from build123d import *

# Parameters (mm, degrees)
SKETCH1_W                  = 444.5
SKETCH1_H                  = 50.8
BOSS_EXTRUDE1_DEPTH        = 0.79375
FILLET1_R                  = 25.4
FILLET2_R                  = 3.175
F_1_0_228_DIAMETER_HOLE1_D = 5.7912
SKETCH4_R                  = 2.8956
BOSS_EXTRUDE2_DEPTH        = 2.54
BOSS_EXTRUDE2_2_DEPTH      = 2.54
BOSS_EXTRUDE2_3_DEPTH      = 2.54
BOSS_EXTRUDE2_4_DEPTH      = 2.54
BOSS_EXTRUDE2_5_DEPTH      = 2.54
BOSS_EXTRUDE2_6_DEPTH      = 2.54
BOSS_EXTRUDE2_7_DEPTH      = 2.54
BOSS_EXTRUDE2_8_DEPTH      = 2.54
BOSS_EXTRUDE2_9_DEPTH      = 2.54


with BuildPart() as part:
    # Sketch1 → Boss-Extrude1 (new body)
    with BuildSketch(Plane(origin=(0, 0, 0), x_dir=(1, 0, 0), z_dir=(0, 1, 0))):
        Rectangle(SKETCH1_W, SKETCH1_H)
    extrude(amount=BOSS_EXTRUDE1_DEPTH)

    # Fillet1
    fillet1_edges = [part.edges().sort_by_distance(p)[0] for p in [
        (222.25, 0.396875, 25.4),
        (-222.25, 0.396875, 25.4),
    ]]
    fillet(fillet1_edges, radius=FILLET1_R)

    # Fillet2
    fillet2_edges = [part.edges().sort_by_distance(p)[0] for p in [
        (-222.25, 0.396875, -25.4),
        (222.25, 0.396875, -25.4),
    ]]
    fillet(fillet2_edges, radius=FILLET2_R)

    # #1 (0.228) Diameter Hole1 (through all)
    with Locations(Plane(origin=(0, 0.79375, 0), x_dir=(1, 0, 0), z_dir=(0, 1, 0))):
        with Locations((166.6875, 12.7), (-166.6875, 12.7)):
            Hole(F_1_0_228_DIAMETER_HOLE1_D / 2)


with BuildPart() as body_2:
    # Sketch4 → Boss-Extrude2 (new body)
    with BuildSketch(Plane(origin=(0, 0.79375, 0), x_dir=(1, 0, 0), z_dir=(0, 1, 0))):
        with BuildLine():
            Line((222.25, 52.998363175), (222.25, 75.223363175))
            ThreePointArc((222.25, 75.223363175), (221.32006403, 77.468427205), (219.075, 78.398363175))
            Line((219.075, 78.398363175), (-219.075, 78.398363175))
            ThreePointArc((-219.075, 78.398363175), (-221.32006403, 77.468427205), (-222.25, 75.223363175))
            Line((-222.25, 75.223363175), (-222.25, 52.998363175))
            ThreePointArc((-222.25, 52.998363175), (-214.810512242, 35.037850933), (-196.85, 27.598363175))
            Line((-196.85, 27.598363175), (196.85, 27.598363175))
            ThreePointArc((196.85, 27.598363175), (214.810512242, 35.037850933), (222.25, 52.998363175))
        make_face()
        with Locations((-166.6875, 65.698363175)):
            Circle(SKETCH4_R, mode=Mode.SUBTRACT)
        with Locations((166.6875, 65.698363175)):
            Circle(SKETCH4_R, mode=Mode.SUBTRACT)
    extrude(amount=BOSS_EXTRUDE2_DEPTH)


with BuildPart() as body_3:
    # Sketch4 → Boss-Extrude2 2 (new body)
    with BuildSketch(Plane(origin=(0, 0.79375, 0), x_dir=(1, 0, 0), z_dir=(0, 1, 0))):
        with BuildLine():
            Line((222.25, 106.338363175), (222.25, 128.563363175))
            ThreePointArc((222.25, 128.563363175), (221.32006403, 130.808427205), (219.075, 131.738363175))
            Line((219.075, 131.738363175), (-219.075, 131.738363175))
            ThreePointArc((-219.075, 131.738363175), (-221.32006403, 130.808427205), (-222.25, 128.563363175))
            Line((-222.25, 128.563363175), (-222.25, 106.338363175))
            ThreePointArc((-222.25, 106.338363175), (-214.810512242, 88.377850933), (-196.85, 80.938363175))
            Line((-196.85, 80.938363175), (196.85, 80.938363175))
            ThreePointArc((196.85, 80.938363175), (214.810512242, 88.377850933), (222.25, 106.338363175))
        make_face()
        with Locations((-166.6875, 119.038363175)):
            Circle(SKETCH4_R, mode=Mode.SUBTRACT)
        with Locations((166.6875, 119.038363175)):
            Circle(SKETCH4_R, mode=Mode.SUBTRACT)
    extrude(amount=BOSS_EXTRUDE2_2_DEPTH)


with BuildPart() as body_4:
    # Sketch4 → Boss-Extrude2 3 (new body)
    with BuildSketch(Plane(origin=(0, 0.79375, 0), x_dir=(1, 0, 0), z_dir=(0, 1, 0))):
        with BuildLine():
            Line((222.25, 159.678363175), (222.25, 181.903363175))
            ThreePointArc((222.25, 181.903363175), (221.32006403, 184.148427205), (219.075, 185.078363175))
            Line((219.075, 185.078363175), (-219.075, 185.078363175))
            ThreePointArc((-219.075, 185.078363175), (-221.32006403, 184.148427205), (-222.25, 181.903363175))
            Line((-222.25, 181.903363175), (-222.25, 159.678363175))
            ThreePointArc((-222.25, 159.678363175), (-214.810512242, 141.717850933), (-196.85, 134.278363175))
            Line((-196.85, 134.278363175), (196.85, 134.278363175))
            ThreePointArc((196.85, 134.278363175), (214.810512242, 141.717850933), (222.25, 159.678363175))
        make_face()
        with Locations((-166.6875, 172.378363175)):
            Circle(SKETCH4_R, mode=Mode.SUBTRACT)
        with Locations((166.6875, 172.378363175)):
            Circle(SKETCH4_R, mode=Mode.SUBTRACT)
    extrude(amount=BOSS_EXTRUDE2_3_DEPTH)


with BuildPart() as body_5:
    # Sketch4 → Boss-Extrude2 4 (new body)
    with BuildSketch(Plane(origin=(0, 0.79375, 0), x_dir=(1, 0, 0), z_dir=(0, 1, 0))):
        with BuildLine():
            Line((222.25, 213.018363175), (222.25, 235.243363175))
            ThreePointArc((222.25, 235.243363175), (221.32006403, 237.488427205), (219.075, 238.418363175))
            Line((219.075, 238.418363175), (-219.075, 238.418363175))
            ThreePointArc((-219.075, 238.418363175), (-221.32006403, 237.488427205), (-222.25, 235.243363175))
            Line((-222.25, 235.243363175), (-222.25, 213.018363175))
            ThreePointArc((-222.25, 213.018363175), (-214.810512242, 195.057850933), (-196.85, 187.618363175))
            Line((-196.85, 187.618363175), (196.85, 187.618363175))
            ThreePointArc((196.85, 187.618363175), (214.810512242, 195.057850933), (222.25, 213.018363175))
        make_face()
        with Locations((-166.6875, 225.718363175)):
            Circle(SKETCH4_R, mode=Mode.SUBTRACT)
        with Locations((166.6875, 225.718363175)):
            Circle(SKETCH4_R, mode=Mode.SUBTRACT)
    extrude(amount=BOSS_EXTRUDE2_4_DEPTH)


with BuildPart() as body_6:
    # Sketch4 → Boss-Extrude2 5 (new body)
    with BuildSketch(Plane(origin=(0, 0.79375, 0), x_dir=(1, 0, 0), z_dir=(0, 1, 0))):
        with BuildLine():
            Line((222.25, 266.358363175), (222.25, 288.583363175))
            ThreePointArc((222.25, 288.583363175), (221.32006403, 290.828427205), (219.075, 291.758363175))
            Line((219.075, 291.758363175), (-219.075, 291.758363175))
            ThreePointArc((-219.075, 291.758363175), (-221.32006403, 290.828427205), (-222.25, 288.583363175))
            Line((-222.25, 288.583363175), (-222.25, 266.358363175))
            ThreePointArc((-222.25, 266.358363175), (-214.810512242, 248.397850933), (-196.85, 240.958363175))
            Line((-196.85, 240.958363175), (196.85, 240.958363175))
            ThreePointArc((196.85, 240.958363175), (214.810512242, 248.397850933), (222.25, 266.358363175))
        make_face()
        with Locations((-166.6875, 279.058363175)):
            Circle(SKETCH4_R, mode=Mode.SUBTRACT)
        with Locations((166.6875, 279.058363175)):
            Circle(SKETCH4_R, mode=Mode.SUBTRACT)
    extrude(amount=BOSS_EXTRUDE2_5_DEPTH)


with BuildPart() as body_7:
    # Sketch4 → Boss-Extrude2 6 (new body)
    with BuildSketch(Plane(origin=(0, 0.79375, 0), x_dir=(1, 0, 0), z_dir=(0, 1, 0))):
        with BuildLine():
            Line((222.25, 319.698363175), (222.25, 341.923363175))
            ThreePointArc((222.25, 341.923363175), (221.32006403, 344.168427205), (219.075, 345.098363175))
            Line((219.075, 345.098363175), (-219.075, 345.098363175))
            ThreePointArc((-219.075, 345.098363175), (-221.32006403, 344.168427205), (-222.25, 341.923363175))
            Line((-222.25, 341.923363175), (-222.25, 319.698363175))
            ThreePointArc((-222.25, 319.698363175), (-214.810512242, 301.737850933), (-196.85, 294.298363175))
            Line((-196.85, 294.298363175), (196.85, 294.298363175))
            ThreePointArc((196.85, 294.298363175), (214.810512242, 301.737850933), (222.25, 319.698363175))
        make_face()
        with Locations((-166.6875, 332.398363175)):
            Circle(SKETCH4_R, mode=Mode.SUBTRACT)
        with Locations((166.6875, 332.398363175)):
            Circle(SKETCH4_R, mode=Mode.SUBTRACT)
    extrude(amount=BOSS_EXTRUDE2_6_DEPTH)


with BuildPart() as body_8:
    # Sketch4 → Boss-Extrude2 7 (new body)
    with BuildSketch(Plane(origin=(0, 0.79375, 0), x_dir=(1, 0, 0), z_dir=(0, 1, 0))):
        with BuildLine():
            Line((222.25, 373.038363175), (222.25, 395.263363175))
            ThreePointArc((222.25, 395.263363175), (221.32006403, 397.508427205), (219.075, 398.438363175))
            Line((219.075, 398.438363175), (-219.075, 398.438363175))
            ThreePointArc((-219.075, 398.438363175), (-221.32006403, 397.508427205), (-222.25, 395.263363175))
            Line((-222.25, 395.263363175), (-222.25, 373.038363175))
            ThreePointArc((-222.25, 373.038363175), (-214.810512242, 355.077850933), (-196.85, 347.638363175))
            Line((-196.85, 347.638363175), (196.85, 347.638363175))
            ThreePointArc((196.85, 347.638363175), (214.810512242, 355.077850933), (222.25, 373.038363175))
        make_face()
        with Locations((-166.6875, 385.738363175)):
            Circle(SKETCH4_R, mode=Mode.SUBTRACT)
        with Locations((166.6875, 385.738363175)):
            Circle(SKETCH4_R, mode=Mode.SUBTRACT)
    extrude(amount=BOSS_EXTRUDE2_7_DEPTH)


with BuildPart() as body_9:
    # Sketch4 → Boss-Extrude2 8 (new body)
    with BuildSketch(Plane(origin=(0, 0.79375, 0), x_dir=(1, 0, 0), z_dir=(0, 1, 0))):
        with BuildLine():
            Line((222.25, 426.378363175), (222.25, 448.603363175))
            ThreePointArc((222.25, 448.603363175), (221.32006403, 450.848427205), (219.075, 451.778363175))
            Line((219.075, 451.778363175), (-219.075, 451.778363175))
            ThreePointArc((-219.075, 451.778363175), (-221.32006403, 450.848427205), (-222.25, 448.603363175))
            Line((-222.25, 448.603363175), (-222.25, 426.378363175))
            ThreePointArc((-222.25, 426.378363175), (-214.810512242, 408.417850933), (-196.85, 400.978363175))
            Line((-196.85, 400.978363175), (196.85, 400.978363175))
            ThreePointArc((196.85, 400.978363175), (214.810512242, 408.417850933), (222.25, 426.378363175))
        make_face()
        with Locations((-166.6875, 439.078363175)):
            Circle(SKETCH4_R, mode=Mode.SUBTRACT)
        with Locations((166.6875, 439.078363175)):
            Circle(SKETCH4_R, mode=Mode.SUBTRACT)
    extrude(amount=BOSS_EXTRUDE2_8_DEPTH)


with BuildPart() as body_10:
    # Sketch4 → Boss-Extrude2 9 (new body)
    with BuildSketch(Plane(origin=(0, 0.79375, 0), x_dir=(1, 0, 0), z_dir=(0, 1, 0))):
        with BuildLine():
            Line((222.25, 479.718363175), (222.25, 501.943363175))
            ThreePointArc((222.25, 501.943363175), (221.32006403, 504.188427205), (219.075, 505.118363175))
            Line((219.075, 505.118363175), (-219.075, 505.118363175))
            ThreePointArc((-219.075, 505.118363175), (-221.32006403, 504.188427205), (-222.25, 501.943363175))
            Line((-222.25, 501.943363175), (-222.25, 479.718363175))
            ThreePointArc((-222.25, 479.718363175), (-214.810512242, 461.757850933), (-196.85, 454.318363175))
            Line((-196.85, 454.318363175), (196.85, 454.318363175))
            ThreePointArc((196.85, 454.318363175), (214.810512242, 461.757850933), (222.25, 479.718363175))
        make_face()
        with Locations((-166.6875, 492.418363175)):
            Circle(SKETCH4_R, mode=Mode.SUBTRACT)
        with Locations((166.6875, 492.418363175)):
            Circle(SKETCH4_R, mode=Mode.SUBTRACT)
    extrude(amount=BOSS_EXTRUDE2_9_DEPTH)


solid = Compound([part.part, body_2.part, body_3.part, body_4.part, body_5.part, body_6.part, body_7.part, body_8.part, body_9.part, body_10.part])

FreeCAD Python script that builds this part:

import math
import FreeCAD as App
import Part
import Sketcher

V = App.Vector
Q = App.Units.Quantity


def edges_at(feature, points):
    """Names of the edges that pass closest to the given points."""
    edges = feature.Shape.Edges
    near = lambda p: min(range(len(edges)), key=lambda i: edges[i].distToShape(Part.Vertex(*p))[0])
    return sorted({f"Edge{near(p) + 1}" for p in points})


def add_polygon(sketch, points):
    """Adds a closed chain of lines whose ends are joined by coincident constraints."""
    first, n = sketch.GeometryCount, len(points)
    for a, b in zip(points, points[1:] + points[:1]):
        sketch.addGeometry(Part.LineSegment(App.Vector(*a, 0), App.Vector(*b, 0)), False)
    for i in range(n):
        sketch.addConstraint(Sketcher.Constraint("Coincident", first + i, 2, first + (i + 1) % n, 1))

doc = App.newDocument("Part")
params = doc.addObject("Spreadsheet::Sheet", "Params")
for row, (alias, value) in enumerate([
    ("sketch1_height", "2 in"),
    ("sketch1_width", "17.5 in"),
    ("pad1_length", "0.03125 in"),
    ("fillet_radius", "1 in"),
    ("fillet2_radius", "0.125 in"),
    ("sketch2_diameter", "0.228 in"),
    ("hole_diameter", "0.228 in"),
    ("sketch3_radius", "1 in"),
    ("sketch3_diameter", "0.228 in"),
    ("sketch3_width", "15.5 in"),
    ("sketch3_radius2", "0.125 in"),
    ("pad2_length", "0.1 in"),
    ("sketch4_radius", "1 in"),
    ("sketch4_diameter", "0.228 in"),
    ("sketch4_width", "15.5 in"),
    ("sketch4_radius2", "0.125 in"),
    ("pad3_length", "0.1 in"),
    ("sketch5_radius", "1 in"),
    ("sketch5_diameter", "0.228 in"),
    ("sketch5_width", "15.5 in"),
    ("sketch5_radius2", "0.125 in"),
    ("pad4_length", "0.1 in"),
    ("sketch6_radius", "1 in"),
    ("sketch6_diameter", "0.228 in"),
    ("sketch6_width", "15.5 in"),
    ("sketch6_radius2", "0.125 in"),
    ("pad5_length", "0.1 in"),
    ("sketch7_radius", "1 in"),
    ("sketch7_diameter", "0.228 in"),
    ("sketch7_width", "15.5 in"),
    ("sketch7_radius2", "0.125 in"),
    ("pad6_length", "0.1 in"),
    ("sketch8_radius", "1 in"),
    ("sketch8_diameter", "0.228 in"),
    ("sketch8_width", "15.5 in"),
    ("sketch8_radius2", "0.125 in"),
    ("pad7_length", "0.1 in"),
    ("sketch9_radius", "1 in"),
    ("sketch9_diameter", "0.228 in"),
    ("sketch9_width", "15.5 in"),
    ("sketch9_radius2", "0.125 in"),
    ("pad8_length", "0.1 in"),
    ("sketch10_radius", "1 in"),
    ("sketch10_diameter", "0.228 in"),
    ("sketch10_width", "15.5 in"),
    ("sketch10_radius2", "0.125 in"),
    ("pad9_length", "0.1 in"),
    ("sketch11_radius", "1 in"),
    ("sketch11_diameter", "0.228 in"),
    ("sketch11_width", "15.5 in"),
    ("sketch11_radius2", "0.125 in"),
    ("pad10_length", "0.1 in"),
], start=1):
    params.set(f"A{row}", alias)
    params.set(f"B{row}", "=" + value)
    params.setAlias(f"B{row}", alias)

body = doc.addObject("PartDesign::Body", "Body")

# Sketch on XZ plane
sketch1 = doc.addObject("Sketcher::SketchObject", "Sketch")
body.addObject(sketch1)
sketch1.AttachmentSupport = (doc.XZ_Plane, [""])
sketch1.MapMode = "FlatFace"
add_polygon(sketch1, [(-222, -25), (-222, 25), (222, 25), (222, -25)])  # lines 0-3
sketch1.addConstraint([
    Sketcher.Constraint("Vertical", 0),
    Sketcher.Constraint("Horizontal", 1),
    Sketcher.Constraint("Vertical", 2),
    Sketcher.Constraint("Horizontal", 3),
    Sketcher.Constraint("Symmetric", 0, 2, 2, 2, -1, 1),
    Sketcher.Constraint("DistanceY", 0, 1, 0, 2, Q("2 in")),
    Sketcher.Constraint("DistanceX", 1, 1, 1, 2, Q("17.5 in")),
])
sketch1.setExpression("Constraints[9]", "Params.sketch1_height")
sketch1.setExpression("Constraints[10]", "Params.sketch1_width")
pad1 = doc.addObject("PartDesign::Pad", "Pad")
body.addObject(pad1)
pad1.Profile = sketch1
pad1.setExpression("Length", "Params.pad1_length")
pad1.Reversed = True
doc.recompute()

fillet = doc.addObject("PartDesign::Fillet", "Fillet")
body.addObject(fillet)
fillet.Base = (pad1, edges_at(pad1, [(222.25, 0.397, 25.4), (-222.25, 0.397, 25.4)]))
fillet.setExpression("Radius", "Params.fillet_radius")
doc.recompute()

fillet2 = doc.addObject("PartDesign::Fillet", "Fillet001")
body.addObject(fillet2)
fillet2.Base = (fillet, edges_at(fillet, [(-222.25, 0.397, -25.4), (222.25, 0.397, -25.4)]))
fillet2.setExpression("Radius", "Params.fillet2_radius")

# Sketch on XZ plane
sketch2 = doc.addObject("Sketcher::SketchObject", "Sketch001")
body.addObject(sketch2)
sketch2.AttachmentSupport = (doc.XZ_Plane, [""])
sketch2.MapMode = "FlatFace"
sketch2.AttachmentOffset = App.Placement(V(0, 0, -0.03125 * 25.4), App.Rotation())
sketch2.addGeometry([
    Part.Circle(V(166.7, -12.7, 0), V(0, 0, 1), 2.9),
    Part.Circle(V(-166.7, -12.7, 0), V(0, 0, 1), 2.9),
], False)
sketch2.addConstraint([
    Sketcher.Constraint("Equal", 0, 1),
    Sketcher.Constraint("Symmetric", 0, 3, 1, 3, -2),
    Sketcher.Constraint("Diameter", 0, Q("0.228 in")),
    Sketcher.Constraint("DistanceY", 0, 3, -1, 1, Q("0.5 in")),
    Sketcher.Constraint("DistanceX", -1, 1, 0, 3, Q("6.5625 in")),
])
sketch2.setExpression("Constraints[2]", "Params.sketch2_diameter")
doc.recompute()
hole = doc.addObject("PartDesign::Hole", "Hole")
body.addObject(hole)
hole.Profile = sketch2
hole.ThreadType = "None"
hole.setExpression("Diameter", "Params.hole_diameter")
hole.DepthType = "ThroughAll"
hole.Reversed = True
body2 = doc.addObject("PartDesign::Body", "Body001")

# Sketch on XZ plane
sketch3 = doc.addObject("Sketcher::SketchObject", "Sketch002")
body2.addObject(sketch3)
sketch3.AttachmentSupport = (doc.getObject("XZ_Plane001"), [""])
sketch3.MapMode = "FlatFace"
sketch3.AttachmentOffset = App.Placement(V(0, 0, -0.03125 * 25.4), App.Rotation())
sketch3.addGeometry([
    Part.LineSegment(V(222.2, -53, 0), V(222.2, -75.2, 0)),  # 0
    Part.ArcOfCircle(Part.Circle(V(219.1, -75.2, 0), V(0, 0, 1), 3.2), math.radians(-90), math.radians(0)),  # 1
    Part.LineSegment(V(219.1, -78.4, 0), V(-219.1, -78.4, 0)),  # 2
    Part.ArcOfCircle(Part.Circle(V(-219.1, -75.2, 0), V(0, 0, 1), 3.2), math.radians(-180), math.radians(-90)),  # 3
    Part.LineSegment(V(-222.2, -75.2, 0), V(-222.2, -53, 0)),  # 4
    Part.ArcOfCircle(Part.Circle(V(-196.8, -53, 0), V(0, 0, 1), 25.4), math.radians(90), math.radians(180)),  # 5
    Part.LineSegment(V(-196.8, -27.6, 0), V(196.8, -27.6, 0)),  # 6
    Part.ArcOfCircle(Part.Circle(V(196.8, -53, 0), V(0, 0, 1), 25.4), math.radians(0), math.radians(90)),  # 7
    Part.Circle(V(-166.7, -65.7, 0), V(0, 0, 1), 2.9),  # 8
    Part.Circle(V(166.7, -65.7, 0), V(0, 0, 1), 2.9),  # 9
], False)
sketch3.addConstraint([
    Sketcher.Constraint("Tangent", 0, 2, 1, 2),
    Sketcher.Constraint("Tangent", 1, 1, 2, 1),
    Sketcher.Constraint("Tangent", 2, 2, 3, 2),
    Sketcher.Constraint("Tangent", 3, 1, 4, 1),
    Sketcher.Constraint("Tangent", 4, 2, 5, 2),
    Sketcher.Constraint("Tangent", 5, 1, 6, 1),
    Sketcher.Constraint("Tangent", 6, 2, 7, 2),
    Sketcher.Constraint("Tangent", 7, 1, 0, 1),
    Sketcher.Constraint("Vertical", 0),
    Sketcher.Constraint("Horizontal", 2),
    Sketcher.Constraint("Vertical", 4),
    Sketcher.Constraint("Horizontal", 6),
    Sketcher.Constraint("Equal", 1, 3),
    Sketcher.Constraint("Equal", 5, 7),
    Sketcher.Constraint("Equal", 8, 9),
    Sketcher.Constraint("Symmetric", 8, 3, 9, 3, -2),
    Sketcher.Constraint("Radius", 5, Q("1 in")),
    Sketcher.Constraint("Diameter", 8, Q("0.228 in")),
    Sketcher.Constraint("DistanceX", 6, 1, 6, 2, Q("15.5 in")),
    Sketcher.Constraint("Radius", 1, Q("0.125 in")),
    Sketcher.Constraint("DistanceY", 1, 1, 7, 3, Q("1 in")),
    Sketcher.Constraint("DistanceY", 8, 3, 5, 3, Q("0.5 in")),
    Sketcher.Constraint("DistanceX", 5, 3, -1, 1, Q("7.75 in")),
    Sketcher.Constraint("DistanceX", 8, 3, -1, 1, Q("6.5625 in")),
    Sketcher.Constraint("DistanceY", 1, 3, -1, 1, Q("75.223363 mm")),
])
sketch3.setExpression("Constraints[16]", "Params.sketch3_radius")
sketch3.setExpression("Constraints[17]", "Params.sketch3_diameter")
sketch3.setExpression("Constraints[18]", "Params.sketch3_width")
sketch3.setExpression("Constraints[19]", "Params.sketch3_radius2")
pad2 = doc.addObject("PartDesign::Pad", "Pad001")
body2.addObject(pad2)
pad2.Profile = sketch3
pad2.setExpression("Length", "Params.pad2_length")
pad2.Reversed = True
body3 = doc.addObject("PartDesign::Body", "Body002")

# Sketch on XZ plane
sketch4 = doc.addObject("Sketcher::SketchObject", "Sketch003")
body3.addObject(sketch4)
sketch4.AttachmentSupport = (doc.getObject("XZ_Plane002"), [""])
sketch4.MapMode = "FlatFace"
sketch4.AttachmentOffset = App.Placement(V(0, 0, -0.03125 * 25.4), App.Rotation())
sketch4.addGeometry([
    Part.LineSegment(V(222.2, -106.3, 0), V(222.2, -128.6, 0)),  # 0
    Part.ArcOfCircle(Part.Circle(V(219.1, -128.6, 0), V(0, 0, 1), 3.2), math.radians(-90), math.radians(0)),  # 1
    Part.LineSegment(V(219.1, -131.7, 0), V(-219.1, -131.7, 0)),  # 2
    Part.ArcOfCircle(Part.Circle(V(-219.1, -128.6, 0), V(0, 0, 1), 3.2), math.radians(-180), math.radians(-90)),  # 3
    Part.LineSegment(V(-222.2, -128.6, 0), V(-222.2, -106.3, 0)),  # 4
    Part.ArcOfCircle(Part.Circle(V(-196.8, -106.3, 0), V(0, 0, 1), 25.4), math.radians(90), math.radians(180)),  # 5
    Part.LineSegment(V(-196.8, -80.9, 0), V(196.8, -80.9, 0)),  # 6
    Part.ArcOfCircle(Part.Circle(V(196.8, -106.3, 0), V(0, 0, 1), 25.4), math.radians(0), math.radians(90)),  # 7
    Part.Circle(V(-166.7, -119, 0), V(0, 0, 1), 2.9),  # 8
    Part.Circle(V(166.7, -119, 0), V(0, 0, 1), 2.9),  # 9
], False)
sketch4.addConstraint([
    Sketcher.Constraint("Tangent", 0, 2, 1, 2),
    Sketcher.Constraint("Tangent", 1, 1, 2, 1),
    Sketcher.Constraint("Tangent", 2, 2, 3, 2),
    Sketcher.Constraint("Tangent", 3, 1, 4, 1),
    Sketcher.Constraint("Tangent", 4, 2, 5, 2),
    Sketcher.Constraint("Tangent", 5, 1, 6, 1),
    Sketcher.Constraint("Tangent", 6, 2, 7, 2),
    Sketcher.Constraint("Tangent", 7, 1, 0, 1),
    Sketcher.Constraint("Vertical", 0),
    Sketcher.Constraint("Horizontal", 2),
    Sketcher.Constraint("Vertical", 4),
    Sketcher.Constraint("Horizontal", 6),
    Sketcher.Constraint("Equal", 1, 3),
    Sketcher.Constraint("Equal", 5, 7),
    Sketcher.Constraint("Equal", 8, 9),
    Sketcher.Constraint("Symmetric", 8, 3, 9, 3, -2),
    Sketcher.Constraint("Radius", 5, Q("1 in")),
    Sketcher.Constraint("Diameter", 8, Q("0.228 in")),
    Sketcher.Constraint("DistanceX", 6, 1, 6, 2, Q("15.5 in")),
    Sketcher.Constraint("Radius", 1, Q("0.125 in")),
    Sketcher.Constraint("DistanceY", 1, 1, 7, 3, Q("1 in")),
    Sketcher.Constraint("DistanceY", 8, 3, 5, 3, Q("0.5 in")),
    Sketcher.Constraint("DistanceX", 5, 3, -1, 1, Q("7.75 in")),
    Sketcher.Constraint("DistanceX", 8, 3, -1, 1, Q("6.5625 in")),
    Sketcher.Constraint("DistanceY", 1, 3, -1, 1, Q("128.563363 mm")),
])
sketch4.setExpression("Constraints[16]", "Params.sketch4_radius")
sketch4.setExpression("Constraints[17]", "Params.sketch4_diameter")
sketch4.setExpression("Constraints[18]", "Params.sketch4_width")
sketch4.setExpression("Constraints[19]", "Params.sketch4_radius2")
pad3 = doc.addObject("PartDesign::Pad", "Pad002")
body3.addObject(pad3)
pad3.Profile = sketch4
pad3.setExpression("Length", "Params.pad3_length")
pad3.Reversed = True
body4 = doc.addObject("PartDesign::Body", "Body003")

# Sketch on XZ plane
sketch5 = doc.addObject("Sketcher::SketchObject", "Sketch004")
body4.addObject(sketch5)
sketch5.AttachmentSupport = (doc.getObject("XZ_Plane003"), [""])
sketch5.MapMode = "FlatFace"
sketch5.AttachmentOffset = App.Placement(V(0, 0, -0.03125 * 25.4), App.Rotation())
sketch5.addGeometry([
    Part.LineSegment(V(222.2, -159.7, 0), V(222.2, -181.9, 0)),  # 0
    Part.ArcOfCircle(Part.Circle(V(219.1, -181.9, 0), V(0, 0, 1), 3.2), math.radians(-90), math.radians(0)),  # 1
    Part.LineSegment(V(219.1, -185.1, 0), V(-219.1, -185.1, 0)),  # 2
    Part.ArcOfCircle(Part.Circle(V(-219.1, -181.9, 0), V(0, 0, 1), 3.2), math.radians(-180), math.radians(-90)),  # 3
    Part.LineSegment(V(-222.2, -181.9, 0), V(-222.2, -159.7, 0)),  # 4
    Part.ArcOfCircle(Part.Circle(V(-196.8, -159.7, 0), V(0, 0, 1), 25.4), math.radians(90), math.radians(180)),  # 5
    Part.LineSegment(V(-196.8, -134.3, 0), V(196.8, -134.3, 0)),  # 6
    Part.ArcOfCircle(Part.Circle(V(196.8, -159.7, 0), V(0, 0, 1), 25.4), math.radians(0), math.radians(90)),  # 7
    Part.Circle(V(-166.7, -172.4, 0), V(0, 0, 1), 2.9),  # 8
    Part.Circle(V(166.7, -172.4, 0), V(0, 0, 1), 2.9),  # 9
], False)
sketch5.addConstraint([
    Sketcher.Constraint("Tangent", 0, 2, 1, 2),
    Sketcher.Constraint("Tangent", 1, 1, 2, 1),
    Sketcher.Constraint("Tangent", 2, 2, 3, 2),
    Sketcher.Constraint("Tangent", 3, 1, 4, 1),
    Sketcher.Constraint("Tangent", 4, 2, 5, 2),
    Sketcher.Constraint("Tangent", 5, 1, 6, 1),
    Sketcher.Constraint("Tangent", 6, 2, 7, 2),
    Sketcher.Constraint("Tangent", 7, 1, 0, 1),
    Sketcher.Constraint("Vertical", 0),
    Sketcher.Constraint("Horizontal", 2),
    Sketcher.Constraint("Vertical", 4),
    Sketcher.Constraint("Horizontal", 6),
    Sketcher.Constraint("Equal", 1, 3),
    Sketcher.Constraint("Equal", 5, 7),
    Sketcher.Constraint("Equal", 8, 9),
    Sketcher.Constraint("Symmetric", 8, 3, 9, 3, -2),
    Sketcher.Constraint("Radius", 5, Q("1 in")),
    Sketcher.Constraint("Diameter", 8, Q("0.228 in")),
    Sketcher.Constraint("DistanceX", 6, 1, 6, 2, Q("15.5 in")),
    Sketcher.Constraint("Radius", 1, Q("0.125 in")),
    Sketcher.Constraint("DistanceY", 1, 1, 7, 3, Q("1 in")),
    Sketcher.Constraint("DistanceY", 8, 3, 5, 3, Q("0.5 in")),
    Sketcher.Constraint("DistanceX", 5, 3, -1, 1, Q("7.75 in")),
    Sketcher.Constraint("DistanceX", 8, 3, -1, 1, Q("6.5625 in")),
    Sketcher.Constraint("DistanceY", 1, 3, -1, 1, Q("181.903363 mm")),
])
sketch5.setExpression("Constraints[16]", "Params.sketch5_radius")
sketch5.setExpression("Constraints[17]", "Params.sketch5_diameter")
sketch5.setExpression("Constraints[18]", "Params.sketch5_width")
sketch5.setExpression("Constraints[19]", "Params.sketch5_radius2")
pad4 = doc.addObject("PartDesign::Pad", "Pad003")
body4.addObject(pad4)
pad4.Profile = sketch5
pad4.setExpression("Length", "Params.pad4_length")
pad4.Reversed = True
body5 = doc.addObject("PartDesign::Body", "Body004")

# Sketch on XZ plane
sketch6 = doc.addObject("Sketcher::SketchObject", "Sketch005")
body5.addObject(sketch6)
sketch6.AttachmentSupport = (doc.getObject("XZ_Plane004"), [""])
sketch6.MapMode = "FlatFace"
sketch6.AttachmentOffset = App.Placement(V(0, 0, -0.03125 * 25.4), App.Rotation())
sketch6.addGeometry([
    Part.LineSegment(V(222.2, -213, 0), V(222.2, -235.2, 0)),  # 0
    Part.ArcOfCircle(Part.Circle(V(219.1, -235.2, 0), V(0, 0, 1), 3.2), math.radians(-90), math.radians(0)),  # 1
    Part.LineSegment(V(219.1, -238.4, 0), V(-219.1, -238.4, 0)),  # 2
    Part.ArcOfCircle(Part.Circle(V(-219.1, -235.2, 0), V(0, 0, 1), 3.2), math.radians(-180), math.radians(-90)),  # 3
    Part.LineSegment(V(-222.2, -235.2, 0), V(-222.2, -213, 0)),  # 4
    Part.ArcOfCircle(Part.Circle(V(-196.8, -213, 0), V(0, 0, 1), 25.4), math.radians(90), math.radians(180)),  # 5
    Part.LineSegment(V(-196.8, -187.6, 0), V(196.8, -187.6, 0)),  # 6
    Part.ArcOfCircle(Part.Circle(V(196.8, -213, 0), V(0, 0, 1), 25.4), math.radians(0), math.radians(90)),  # 7
    Part.Circle(V(-166.7, -225.7, 0), V(0, 0, 1), 2.9),  # 8
    Part.Circle(V(166.7, -225.7, 0), V(0, 0, 1), 2.9),  # 9
], False)
sketch6.addConstraint([
    Sketcher.Constraint("Tangent", 0, 2, 1, 2),
    Sketcher.Constraint("Tangent", 1, 1, 2, 1),
    Sketcher.Constraint("Tangent", 2, 2, 3, 2),
    Sketcher.Constraint("Tangent", 3, 1, 4, 1),
    Sketcher.Constraint("Tangent", 4, 2, 5, 2),
    Sketcher.Constraint("Tangent", 5, 1, 6, 1),
    Sketcher.Constraint("Tangent", 6, 2, 7, 2),
    Sketcher.Constraint("Tangent", 7, 1, 0, 1),
    Sketcher.Constraint("Vertical", 0),
    Sketcher.Constraint("Horizontal", 2),
    Sketcher.Constraint("Vertical", 4),
    Sketcher.Constraint("Horizontal", 6),
    Sketcher.Constraint("Equal", 1, 3),
    Sketcher.Constraint("Equal", 5, 7),
    Sketcher.Constraint("Equal", 8, 9),
    Sketcher.Constraint("Symmetric", 8, 3, 9, 3, -2),
    Sketcher.Constraint("Radius", 5, Q("1 in")),
    Sketcher.Constraint("Diameter", 8, Q("0.228 in")),
    Sketcher.Constraint("DistanceX", 6, 1, 6, 2, Q("15.5 in")),
    Sketcher.Constraint("Radius", 1, Q("0.125 in")),
    Sketcher.Constraint("DistanceY", 1, 1, 7, 3, Q("1 in")),
    Sketcher.Constraint("DistanceY", 8, 3, 5, 3, Q("0.5 in")),
    Sketcher.Constraint("DistanceX", 5, 3, -1, 1, Q("7.75 in")),
    Sketcher.Constraint("DistanceX", 8, 3, -1, 1, Q("6.5625 in")),
    Sketcher.Constraint("DistanceY", 1, 3, -1, 1, Q("235.243363 mm")),
])
sketch6.setExpression("Constraints[16]", "Params.sketch6_radius")
sketch6.setExpression("Constraints[17]", "Params.sketch6_diameter")
sketch6.setExpression("Constraints[18]", "Params.sketch6_width")
sketch6.setExpression("Constraints[19]", "Params.sketch6_radius2")
pad5 = doc.addObject("PartDesign::Pad", "Pad004")
body5.addObject(pad5)
pad5.Profile = sketch6
pad5.setExpression("Length", "Params.pad5_length")
pad5.Reversed = True
body6 = doc.addObject("PartDesign::Body", "Body005")

# Sketch on XZ plane
sketch7 = doc.addObject("Sketcher::SketchObject", "Sketch006")
body6.addObject(sketch7)
sketch7.AttachmentSupport = (doc.getObject("XZ_Plane005"), [""])
sketch7.MapMode = "FlatFace"
sketch7.AttachmentOffset = App.Placement(V(0, 0, -0.03125 * 25.4), App.Rotation())
sketch7.addGeometry([
    Part.LineSegment(V(222.2, -266.4, 0), V(222.2, -288.6, 0)),  # 0
    Part.ArcOfCircle(Part.Circle(V(219.1, -288.6, 0), V(0, 0, 1), 3.2), math.radians(-90), math.radians(0)),  # 1
    Part.LineSegment(V(219.1, -291.8, 0), V(-219.1, -291.8, 0)),  # 2
    Part.ArcOfCircle(Part.Circle(V(-219.1, -288.6, 0), V(0, 0, 1), 3.2), math.radians(-180), math.radians(-90)),  # 3
    Part.LineSegment(V(-222.2, -288.6, 0), V(-222.2, -266.4, 0)),  # 4
    Part.ArcOfCircle(Part.Circle(V(-196.8, -266.4, 0), V(0, 0, 1), 25.4), math.radians(90), math.radians(180)),  # 5
    Part.LineSegment(V(-196.8, -241, 0), V(196.8, -241, 0)),  # 6
    Part.ArcOfCircle(Part.Circle(V(196.8, -266.4, 0), V(0, 0, 1), 25.4), math.radians(0), math.radians(90)),  # 7
    Part.Circle(V(-166.7, -279.1, 0), V(0, 0, 1), 2.9),  # 8
    Part.Circle(V(166.7, -279.1, 0), V(0, 0, 1), 2.9),  # 9
], False)
sketch7.addConstraint([
    Sketcher.Constraint("Tangent", 0, 2, 1, 2),
    Sketcher.Constraint("Tangent", 1, 1, 2, 1),
    Sketcher.Constraint("Tangent", 2, 2, 3, 2),
    Sketcher.Constraint("Tangent", 3, 1, 4, 1),
    Sketcher.Constraint("Tangent", 4, 2, 5, 2),
    Sketcher.Constraint("Tangent", 5, 1, 6, 1),
    Sketcher.Constraint("Tangent", 6, 2, 7, 2),
    Sketcher.Constraint("Tangent", 7, 1, 0, 1),
    Sketcher.Constraint("Vertical", 0),
    Sketcher.Constraint("Horizontal", 2),
    Sketcher.Constraint("Vertical", 4),
    Sketcher.Constraint("Horizontal", 6),
    Sketcher.Constraint("Equal", 1, 3),
    Sketcher.Constraint("Equal", 5, 7),
    Sketcher.Constraint("Equal", 8, 9),
    Sketcher.Constraint("Symmetric", 8, 3, 9, 3, -2),
    Sketcher.Constraint("Radius", 5, Q("1 in")),
    Sketcher.Constraint("Diameter", 8, Q("0.228 in")),
    Sketcher.Constraint("DistanceX", 6, 1, 6, 2, Q("15.5 in")),
    Sketcher.Constraint("Radius", 1, Q("0.125 in")),
    Sketcher.Constraint("DistanceY", 1, 1, 7, 3, Q("1 in")),
    Sketcher.Constraint("DistanceY", 8, 3, 5, 3, Q("0.5 in")),
    Sketcher.Constraint("DistanceX", 5, 3, -1, 1, Q("7.75 in")),
    Sketcher.Constraint("DistanceX", 8, 3, -1, 1, Q("6.5625 in")),
    Sketcher.Constraint("DistanceY", 1, 3, -1, 1, Q("288.583363 mm")),
])
sketch7.setExpression("Constraints[16]", "Params.sketch7_radius")
sketch7.setExpression("Constraints[17]", "Params.sketch7_diameter")
sketch7.setExpression("Constraints[18]", "Params.sketch7_width")
sketch7.setExpression("Constraints[19]", "Params.sketch7_radius2")
pad6 = doc.addObject("PartDesign::Pad", "Pad005")
body6.addObject(pad6)
pad6.Profile = sketch7
pad6.setExpression("Length", "Params.pad6_length")
pad6.Reversed = True
body7 = doc.addObject("PartDesign::Body", "Body006")

# Sketch on XZ plane
sketch8 = doc.addObject("Sketcher::SketchObject", "Sketch007")
body7.addObject(sketch8)
sketch8.AttachmentSupport = (doc.getObject("XZ_Plane006"), [""])
sketch8.MapMode = "FlatFace"
sketch8.AttachmentOffset = App.Placement(V(0, 0, -0.03125 * 25.4), App.Rotation())
sketch8.addGeometry([
    Part.LineSegment(V(222.2, -319.7, 0), V(222.2, -341.9, 0)),  # 0
    Part.ArcOfCircle(Part.Circle(V(219.1, -341.9, 0), V(0, 0, 1), 3.2), math.radians(-90), math.radians(0)),  # 1
    Part.LineSegment(V(219.1, -345.1, 0), V(-219.1, -345.1, 0)),  # 2
    Part.ArcOfCircle(Part.Circle(V(-219.1, -341.9, 0), V(0, 0, 1), 3.2), math.radians(-180), math.radians(-90)),  # 3
    Part.LineSegment(V(-222.2, -341.9, 0), V(-222.2, -319.7, 0)),  # 4
    Part.ArcOfCircle(Part.Circle(V(-196.8, -319.7, 0), V(0, 0, 1), 25.4), math.radians(90), math.radians(180)),  # 5
    Part.LineSegment(V(-196.8, -294.3, 0), V(196.8, -294.3, 0)),  # 6
    Part.ArcOfCircle(Part.Circle(V(196.8, -319.7, 0), V(0, 0, 1), 25.4), math.radians(0), math.radians(90)),  # 7
    Part.Circle(V(-166.7, -332.4, 0), V(0, 0, 1), 2.9),  # 8
    Part.Circle(V(166.7, -332.4, 0), V(0, 0, 1), 2.9),  # 9
], False)
sketch8.addConstraint([
    Sketcher.Constraint("Tangent", 0, 2, 1, 2),
    Sketcher.Constraint("Tangent", 1, 1, 2, 1),
    Sketcher.Constraint("Tangent", 2, 2, 3, 2),
    Sketcher.Constraint("Tangent", 3, 1, 4, 1),
    Sketcher.Constraint("Tangent", 4, 2, 5, 2),
    Sketcher.Constraint("Tangent", 5, 1, 6, 1),
    Sketcher.Constraint("Tangent", 6, 2, 7, 2),
    Sketcher.Constraint("Tangent", 7, 1, 0, 1),
    Sketcher.Constraint("Vertical", 0),
    Sketcher.Constraint("Horizontal", 2),
    Sketcher.Constraint("Vertical", 4),
    Sketcher.Constraint("Horizontal", 6),
    Sketcher.Constraint("Equal", 1, 3),
    Sketcher.Constraint("Equal", 5, 7),
    Sketcher.Constraint("Equal", 8, 9),
    Sketcher.Constraint("Symmetric", 8, 3, 9, 3, -2),
    Sketcher.Constraint("Radius", 5, Q("1 in")),
    Sketcher.Constraint("Diameter", 8, Q("0.228 in")),
    Sketcher.Constraint("DistanceX", 6, 1, 6, 2, Q("15.5 in")),
    Sketcher.Constraint("Radius", 1, Q("0.125 in")),
    Sketcher.Constraint("DistanceY", 1, 1, 7, 3, Q("1 in")),
    Sketcher.Constraint("DistanceY", 8, 3, 5, 3, Q("0.5 in")),
    Sketcher.Constraint("DistanceX", 5, 3, -1, 1, Q("7.75 in")),
    Sketcher.Constraint("DistanceX", 8, 3, -1, 1, Q("6.5625 in")),
    Sketcher.Constraint("DistanceY", 1, 3, -1, 1, Q("341.923363 mm")),
])
sketch8.setExpression("Constraints[16]", "Params.sketch8_radius")
sketch8.setExpression("Constraints[17]", "Params.sketch8_diameter")
sketch8.setExpression("Constraints[18]", "Params.sketch8_width")
sketch8.setExpression("Constraints[19]", "Params.sketch8_radius2")
pad7 = doc.addObject("PartDesign::Pad", "Pad006")
body7.addObject(pad7)
pad7.Profile = sketch8
pad7.setExpression("Length", "Params.pad7_length")
pad7.Reversed = True
body8 = doc.addObject("PartDesign::Body", "Body007")

# Sketch on XZ plane
sketch9 = doc.addObject("Sketcher::SketchObject", "Sketch008")
body8.addObject(sketch9)
sketch9.AttachmentSupport = (doc.getObject("XZ_Plane007"), [""])
sketch9.MapMode = "FlatFace"
sketch9.AttachmentOffset = App.Placement(V(0, 0, -0.03125 * 25.4), App.Rotation())
sketch9.addGeometry([
    Part.LineSegment(V(222.2, -373, 0), V(222.2, -395.3, 0)),  # 0
    Part.ArcOfCircle(Part.Circle(V(219.1, -395.3, 0), V(0, 0, 1), 3.2), math.radians(-90), math.radians(0)),  # 1
    Part.LineSegment(V(219.1, -398.4, 0), V(-219.1, -398.4, 0)),  # 2
    Part.ArcOfCircle(Part.Circle(V(-219.1, -395.3, 0), V(0, 0, 1), 3.2), math.radians(-180), math.radians(-90)),  # 3
    Part.LineSegment(V(-222.2, -395.3, 0), V(-222.2, -373, 0)),  # 4
    Part.ArcOfCircle(Part.Circle(V(-196.8, -373, 0), V(0, 0, 1), 25.4), math.radians(90), math.radians(180)),  # 5
    Part.LineSegment(V(-196.8, -347.6, 0), V(196.8, -347.6, 0)),  # 6
    Part.ArcOfCircle(Part.Circle(V(196.8, -373, 0), V(0, 0, 1), 25.4), math.radians(0), math.radians(90)),  # 7
    Part.Circle(V(-166.7, -385.7, 0), V(0, 0, 1), 2.9),  # 8
    Part.Circle(V(166.7, -385.7, 0), V(0, 0, 1), 2.9),  # 9
], False)
sketch9.addConstraint([
    Sketcher.Constraint("Tangent", 0, 2, 1, 2),
    Sketcher.Constraint("Tangent", 1, 1, 2, 1),
    Sketcher.Constraint("Tangent", 2, 2, 3, 2),
    Sketcher.Constraint("Tangent", 3, 1, 4, 1),
    Sketcher.Constraint("Tangent", 4, 2, 5, 2),
    Sketcher.Constraint("Tangent", 5, 1, 6, 1),
    Sketcher.Constraint("Tangent", 6, 2, 7, 2),
    Sketcher.Constraint("Tangent", 7, 1, 0, 1),
    Sketcher.Constraint("Vertical", 0),
    Sketcher.Constraint("Horizontal", 2),
    Sketcher.Constraint("Vertical", 4),
    Sketcher.Constraint("Horizontal", 6),
    Sketcher.Constraint("Equal", 1, 3),
    Sketcher.Constraint("Equal", 5, 7),
    Sketcher.Constraint("Equal", 8, 9),
    Sketcher.Constraint("Symmetric", 8, 3, 9, 3, -2),
    Sketcher.Constraint("Radius", 5, Q("1 in")),
    Sketcher.Constraint("Diameter", 8, Q("0.228 in")),
    Sketcher.Constraint("DistanceX", 6, 1, 6, 2, Q("15.5 in")),
    Sketcher.Constraint("Radius", 1, Q("0.125 in")),
    Sketcher.Constraint("DistanceY", 1, 1, 7, 3, Q("1 in")),
    Sketcher.Constraint("DistanceY", 8, 3, 5, 3, Q("0.5 in")),
    Sketcher.Constraint("DistanceX", 5, 3, -1, 1, Q("7.75 in")),
    Sketcher.Constraint("DistanceX", 8, 3, -1, 1, Q("6.5625 in")),
    Sketcher.Constraint("DistanceY", 1, 3, -1, 1, Q("395.263363 mm")),
])
sketch9.setExpression("Constraints[16]", "Params.sketch9_radius")
sketch9.setExpression("Constraints[17]", "Params.sketch9_diameter")
sketch9.setExpression("Constraints[18]", "Params.sketch9_width")
sketch9.setExpression("Constraints[19]", "Params.sketch9_radius2")
pad8 = doc.addObject("PartDesign::Pad", "Pad007")
body8.addObject(pad8)
pad8.Profile = sketch9
pad8.setExpression("Length", "Params.pad8_length")
pad8.Reversed = True
body9 = doc.addObject("PartDesign::Body", "Body008")

# Sketch on XZ plane
sketch10 = doc.addObject("Sketcher::SketchObject", "Sketch009")
body9.addObject(sketch10)
sketch10.AttachmentSupport = (doc.getObject("XZ_Plane008"), [""])
sketch10.MapMode = "FlatFace"
sketch10.AttachmentOffset = App.Placement(V(0, 0, -0.03125 * 25.4), App.Rotation())
sketch10.addGeometry([
    Part.LineSegment(V(222.2, -426.4, 0), V(222.2, -448.6, 0)),  # 0
    Part.ArcOfCircle(Part.Circle(V(219.1, -448.6, 0), V(0, 0, 1), 3.2), math.radians(-90), math.radians(0)),  # 1
    Part.LineSegment(V(219.1, -451.8, 0), V(-219.1, -451.8, 0)),  # 2
    Part.ArcOfCircle(Part.Circle(V(-219.1, -448.6, 0), V(0, 0, 1), 3.2), math.radians(-180), math.radians(-90)),  # 3
    Part.LineSegment(V(-222.2, -448.6, 0), V(-222.2, -426.4, 0)),  # 4
    Part.ArcOfCircle(Part.Circle(V(-196.8, -426.4, 0), V(0, 0, 1), 25.4), math.radians(90), math.radians(180)),  # 5
    Part.LineSegment(V(-196.8, -401, 0), V(196.8, -401, 0)),  # 6
    Part.ArcOfCircle(Part.Circle(V(196.8, -426.4, 0), V(0, 0, 1), 25.4), math.radians(0), math.radians(90)),  # 7
    Part.Circle(V(-166.7, -439.1, 0), V(0, 0, 1), 2.9),  # 8
    Part.Circle(V(166.7, -439.1, 0), V(0, 0, 1), 2.9),  # 9
], False)
sketch10.addConstraint([
    Sketcher.Constraint("Tangent", 0, 2, 1, 2),
    Sketcher.Constraint("Tangent", 1, 1, 2, 1),
    Sketcher.Constraint("Tangent", 2, 2, 3, 2),
    Sketcher.Constraint("Tangent", 3, 1, 4, 1),
    Sketcher.Constraint("Tangent", 4, 2, 5, 2),
    Sketcher.Constraint("Tangent", 5, 1, 6, 1),
    Sketcher.Constraint("Tangent", 6, 2, 7, 2),
    Sketcher.Constraint("Tangent", 7, 1, 0, 1),
    Sketcher.Constraint("Vertical", 0),
    Sketcher.Constraint("Horizontal", 2),
    Sketcher.Constraint("Vertical", 4),
    Sketcher.Constraint("Horizontal", 6),
    Sketcher.Constraint("Equal", 1, 3),
    Sketcher.Constraint("Equal", 5, 7),
    Sketcher.Constraint("Equal", 8, 9),
    Sketcher.Constraint("Symmetric", 8, 3, 9, 3, -2),
    Sketcher.Constraint("Radius", 5, Q("1 in")),
    Sketcher.Constraint("Diameter", 8, Q("0.228 in")),
    Sketcher.Constraint("DistanceX", 6, 1, 6, 2, Q("15.5 in")),
    Sketcher.Constraint("Radius", 1, Q("0.125 in")),
    Sketcher.Constraint("DistanceY", 1, 1, 7, 3, Q("1 in")),
    Sketcher.Constraint("DistanceY", 8, 3, 5, 3, Q("0.5 in")),
    Sketcher.Constraint("DistanceX", 5, 3, -1, 1, Q("7.75 in")),
    Sketcher.Constraint("DistanceX", 8, 3, -1, 1, Q("6.5625 in")),
    Sketcher.Constraint("DistanceY", 1, 3, -1, 1, Q("448.603363 mm")),
])
sketch10.setExpression("Constraints[16]", "Params.sketch10_radius")
sketch10.setExpression("Constraints[17]", "Params.sketch10_diameter")
sketch10.setExpression("Constraints[18]", "Params.sketch10_width")
sketch10.setExpression("Constraints[19]", "Params.sketch10_radius2")
pad9 = doc.addObject("PartDesign::Pad", "Pad008")
body9.addObject(pad9)
pad9.Profile = sketch10
pad9.setExpression("Length", "Params.pad9_length")
pad9.Reversed = True
body10 = doc.addObject("PartDesign::Body", "Body009")

# Sketch on XZ plane
sketch11 = doc.addObject("Sketcher::SketchObject", "Sketch010")
body10.addObject(sketch11)
sketch11.AttachmentSupport = (doc.getObject("XZ_Plane009"), [""])
sketch11.MapMode = "FlatFace"
sketch11.AttachmentOffset = App.Placement(V(0, 0, -0.03125 * 25.4), App.Rotation())
sketch11.addGeometry([
    Part.LineSegment(V(222.2, -479.7, 0), V(222.2, -501.9, 0)),  # 0
    Part.ArcOfCircle(Part.Circle(V(219.1, -501.9, 0), V(0, 0, 1), 3.2), math.radians(-90), math.radians(0)),  # 1
    Part.LineSegment(V(219.1, -505.1, 0), V(-219.1, -505.1, 0)),  # 2
    Part.ArcOfCircle(Part.Circle(V(-219.1, -501.9, 0), V(0, 0, 1), 3.2), math.radians(-180), math.radians(-90)),  # 3
    Part.LineSegment(V(-222.2, -501.9, 0), V(-222.2, -479.7, 0)),  # 4
    Part.ArcOfCircle(Part.Circle(V(-196.8, -479.7, 0), V(0, 0, 1), 25.4), math.radians(90), math.radians(180)),  # 5
    Part.LineSegment(V(-196.8, -454.3, 0), V(196.8, -454.3, 0)),  # 6
    Part.ArcOfCircle(Part.Circle(V(196.8, -479.7, 0), V(0, 0, 1), 25.4), math.radians(0), math.radians(90)),  # 7
    Part.Circle(V(-166.7, -492.4, 0), V(0, 0, 1), 2.9),  # 8
    Part.Circle(V(166.7, -492.4, 0), V(0, 0, 1), 2.9),  # 9
], False)
sketch11.addConstraint([
    Sketcher.Constraint("Tangent", 0, 2, 1, 2),
    Sketcher.Constraint("Tangent", 1, 1, 2, 1),
    Sketcher.Constraint("Tangent", 2, 2, 3, 2),
    Sketcher.Constraint("Tangent", 3, 1, 4, 1),
    Sketcher.Constraint("Tangent", 4, 2, 5, 2),
    Sketcher.Constraint("Tangent", 5, 1, 6, 1),
    Sketcher.Constraint("Tangent", 6, 2, 7, 2),
    Sketcher.Constraint("Tangent", 7, 1, 0, 1),
    Sketcher.Constraint("Vertical", 0),
    Sketcher.Constraint("Horizontal", 2),
    Sketcher.Constraint("Vertical", 4),
    Sketcher.Constraint("Horizontal", 6),
    Sketcher.Constraint("Equal", 1, 3),
    Sketcher.Constraint("Equal", 5, 7),
    Sketcher.Constraint("Equal", 8, 9),
    Sketcher.Constraint("Symmetric", 8, 3, 9, 3, -2),
    Sketcher.Constraint("Radius", 5, Q("1 in")),
    Sketcher.Constraint("Diameter", 8, Q("0.228 in")),
    Sketcher.Constraint("DistanceX", 6, 1, 6, 2, Q("15.5 in")),
    Sketcher.Constraint("Radius", 1, Q("0.125 in")),
    Sketcher.Constraint("DistanceY", 1, 1, 7, 3, Q("1 in")),
    Sketcher.Constraint("DistanceY", 8, 3, 5, 3, Q("0.5 in")),
    Sketcher.Constraint("DistanceX", 5, 3, -1, 1, Q("7.75 in")),
    Sketcher.Constraint("DistanceX", 8, 3, -1, 1, Q("6.5625 in")),
    Sketcher.Constraint("DistanceY", 1, 3, -1, 1, Q("501.943363 mm")),
])
sketch11.setExpression("Constraints[16]", "Params.sketch11_radius")
sketch11.setExpression("Constraints[17]", "Params.sketch11_diameter")
sketch11.setExpression("Constraints[18]", "Params.sketch11_width")
sketch11.setExpression("Constraints[19]", "Params.sketch11_radius2")
pad10 = doc.addObject("PartDesign::Pad", "Pad009")
body10.addObject(pad10)
pad10.Profile = sketch11
pad10.setExpression("Length", "Params.pad10_length")
pad10.Reversed = True

doc.recompute()
